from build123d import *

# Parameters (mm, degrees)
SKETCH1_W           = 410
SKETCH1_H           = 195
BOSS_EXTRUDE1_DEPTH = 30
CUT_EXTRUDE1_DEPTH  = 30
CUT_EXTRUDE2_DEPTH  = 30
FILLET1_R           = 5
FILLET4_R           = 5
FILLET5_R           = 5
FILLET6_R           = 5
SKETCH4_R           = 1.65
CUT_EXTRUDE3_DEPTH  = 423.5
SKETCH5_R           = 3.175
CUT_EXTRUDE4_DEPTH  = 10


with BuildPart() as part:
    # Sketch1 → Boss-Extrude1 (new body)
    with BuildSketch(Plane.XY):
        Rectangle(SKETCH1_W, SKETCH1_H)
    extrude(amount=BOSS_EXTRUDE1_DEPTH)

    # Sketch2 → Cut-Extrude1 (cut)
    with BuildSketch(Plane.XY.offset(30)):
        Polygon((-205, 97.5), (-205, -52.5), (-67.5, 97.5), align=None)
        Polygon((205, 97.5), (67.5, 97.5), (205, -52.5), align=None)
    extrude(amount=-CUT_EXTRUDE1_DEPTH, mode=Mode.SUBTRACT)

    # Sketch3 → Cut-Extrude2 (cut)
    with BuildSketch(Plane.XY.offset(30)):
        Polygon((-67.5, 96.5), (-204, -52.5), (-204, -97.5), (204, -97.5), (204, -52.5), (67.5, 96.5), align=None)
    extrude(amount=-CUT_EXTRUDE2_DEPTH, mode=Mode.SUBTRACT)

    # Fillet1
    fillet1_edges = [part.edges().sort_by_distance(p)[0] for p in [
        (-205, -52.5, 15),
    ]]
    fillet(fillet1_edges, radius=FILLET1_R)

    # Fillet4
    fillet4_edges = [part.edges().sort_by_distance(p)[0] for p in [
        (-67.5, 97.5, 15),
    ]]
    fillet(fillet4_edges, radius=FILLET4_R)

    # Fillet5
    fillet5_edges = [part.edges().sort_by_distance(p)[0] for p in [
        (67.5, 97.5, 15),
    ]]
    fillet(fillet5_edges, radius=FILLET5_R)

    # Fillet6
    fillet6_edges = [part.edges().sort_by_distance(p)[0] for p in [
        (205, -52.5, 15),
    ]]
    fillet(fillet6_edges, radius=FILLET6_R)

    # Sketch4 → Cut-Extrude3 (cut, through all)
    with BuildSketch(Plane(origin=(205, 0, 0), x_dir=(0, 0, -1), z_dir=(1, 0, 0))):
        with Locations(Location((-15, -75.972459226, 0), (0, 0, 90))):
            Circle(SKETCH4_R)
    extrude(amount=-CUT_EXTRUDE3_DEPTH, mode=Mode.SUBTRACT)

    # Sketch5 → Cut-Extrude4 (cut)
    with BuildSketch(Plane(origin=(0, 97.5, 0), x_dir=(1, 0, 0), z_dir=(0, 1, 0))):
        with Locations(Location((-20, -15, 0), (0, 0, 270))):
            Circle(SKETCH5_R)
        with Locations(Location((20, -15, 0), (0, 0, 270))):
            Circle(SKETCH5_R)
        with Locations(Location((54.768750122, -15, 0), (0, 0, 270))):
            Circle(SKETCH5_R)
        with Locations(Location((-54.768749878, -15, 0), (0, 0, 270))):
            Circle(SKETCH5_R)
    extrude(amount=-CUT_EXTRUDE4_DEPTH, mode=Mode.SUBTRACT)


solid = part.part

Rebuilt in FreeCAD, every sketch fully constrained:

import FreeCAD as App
import Part
import Sketcher
from FreeCAD import Vector
Q = App.Units.Quantity


def edges_at(feature, points):
    """Names of the edges that pass closest to the given points."""
    edges = feature.Shape.Edges
    near = lambda p: min(range(len(edges)), key=lambda i: edges[i].distToShape(Part.Vertex(*p))[0])
    return sorted({f"Edge{near(p) + 1}" for p in points})

doc = App.newDocument("Part")
body = doc.addObject("PartDesign::Body", "Body")

# Sketch on XY plane
sketch1 = body.newObject("Sketcher::SketchObject", "Sketch")
sketch1.AttachmentSupport = (doc.getObject("XY_Plane"), [""])
sketch1.MapMode = "FlatFace"
sketch1.addGeometry([
    Part.LineSegment(Vector(-205, 98, 0), Vector(-205, -98, 0)),
    Part.LineSegment(Vector(-205, -98, 0), Vector(205, -98, 0)),
    Part.LineSegment(Vector(205, -98, 0), Vector(205, 98, 0)),
    Part.LineSegment(Vector(205, 98, 0), Vector(-205, 98, 0)),
], False)
sketch1.addConstraint([
    Sketcher.Constraint("Coincident", 0, 2, 1, 1),
    Sketcher.Constraint("Coincident", 1, 2, 2, 1),
    Sketcher.Constraint("Coincident", 2, 2, 3, 1),
    Sketcher.Constraint("Coincident", 3, 2, 0, 1),
    Sketcher.Constraint("Vertical", 0),
    Sketcher.Constraint("Horizontal", 1),
    Sketcher.Constraint("Vertical", 2),
    Sketcher.Constraint("Horizontal", 3),
    Sketcher.Constraint("Symmetric", 0, 2, 2, 2, -1, 1),
    Sketcher.Constraint("DistanceX", 1, 1, 1, 2, Q("410 mm")),
    Sketcher.Constraint("DistanceY", 0, 2, 0, 1, Q("195 mm")),
])
pad1 = body.newObject("PartDesign::Pad", "Pad")
pad1.Profile = sketch1
pad1.Length = 30

# Sketch on XY plane
sketch2 = body.newObject("Sketcher::SketchObject", "Sketch001")
sketch2.AttachmentSupport = (doc.getObject("XY_Plane"), [""])
sketch2.MapMode = "FlatFace"
sketch2.AttachmentOffset = App.Placement(Vector(0, 0, 30), App.Rotation())
sketch2.addGeometry([
    Part.LineSegment(Vector(-205, 98, 0), Vector(-205, -52, 0)),  # 0
    Part.LineSegment(Vector(-205, -52, 0), Vector(-68, 98, 0)),  # 1
    Part.LineSegment(Vector(-68, 98, 0), Vector(-205, 98, 0)),  # 2
    Part.LineSegment(Vector(205, 98, 0), Vector(68, 98, 0)),  # 3
    Part.LineSegment(Vector(68, 98, 0), Vector(205, -52, 0)),  # 4
    Part.LineSegment(Vector(205, -52, 0), Vector(205, 98, 0)),  # 5
], False)
sketch2.addConstraint([
    Sketcher.Constraint("Coincident", 0, 2, 1, 1),
    Sketcher.Constraint("Coincident", 1, 2, 2, 1),
    Sketcher.Constraint("Coincident", 2, 2, 0, 1),
    Sketcher.Constraint("Coincident", 3, 2, 4, 1),
    Sketcher.Constraint("Coincident", 4, 2, 5, 1),
    Sketcher.Constraint("Coincident", 5, 2, 3, 1),
    Sketcher.Constraint("Vertical", 0),
    Sketcher.Constraint("Horizontal", 2),
    Sketcher.Constraint("Horizontal", 3),
    Sketcher.Constraint("Vertical", 5),
    Sketcher.Constraint("Symmetric", 1, 2, 3, 2, -2),
    Sketcher.Constraint("Symmetric", 0, 2, 4, 2, -2),
    Sketcher.Constraint("DistanceY", 0, 2, 0, 1, Q("150 mm")),
    Sketcher.Constraint("DistanceX", 2, 2, 2, 1, Q("137.5 mm")),
    Sketcher.Constraint("DistanceX", 0, 2, -1, 1, Q("205 mm")),
    Sketcher.Constraint("DistanceY", 0, 2, -1, 1, Q("52.5 mm")),
])
pocket1 = body.newObject("PartDesign::Pocket", "Pocket")
pocket1.Profile = sketch2
pocket1.Length = 30

# Sketch on XY plane
sketch3 = body.newObject("Sketcher::SketchObject", "Sketch002")
sketch3.AttachmentSupport = (doc.getObject("XY_Plane"), [""])
sketch3.MapMode = "FlatFace"
sketch3.AttachmentOffset = App.Placement(Vector(0, 0, 30), App.Rotation())
sketch3.addGeometry([
    Part.LineSegment(Vector(-68, 96, 0), Vector(-204, -52, 0)),  # 0
    Part.LineSegment(Vector(-204, -52, 0), Vector(-204, -98, 0)),  # 1
    Part.LineSegment(Vector(-204, -98, 0), Vector(204, -98, 0)),  # 2
    Part.LineSegment(Vector(204, -98, 0), Vector(204, -52, 0)),  # 3
    Part.LineSegment(Vector(204, -52, 0), Vector(68, 96, 0)),  # 4
    Part.LineSegment(Vector(68, 96, 0), Vector(-68, 96, 0)),  # 5
], False)
sketch3.addConstraint([
    Sketcher.Constraint("Coincident", 0, 2, 1, 1),
    Sketcher.Constraint("Coincident", 1, 2, 2, 1),
    Sketcher.Constraint("Coincident", 2, 2, 3, 1),
    Sketcher.Constraint("Coincident", 3, 2, 4, 1),
    Sketcher.Constraint("Coincident", 4, 2, 5, 1),
    Sketcher.Constraint("Coincident", 5, 2, 0, 1),
    Sketcher.Constraint("Vertical", 1),
    Sketcher.Constraint("Horizontal", 2),
    Sketcher.Constraint("Vertical", 3),
    Sketcher.Constraint("Horizontal", 5),
    Sketcher.Constraint("Symmetric", 0, 2, 3, 2, -2),
    Sketcher.Constraint("Equal", 0, 4),
    Sketcher.Constraint("DistanceX", 2, 1, 2, 2, Q("408 mm")),
    Sketcher.Constraint("DistanceX", 5, 2, 5, 1, Q("135 mm")),
    Sketcher.Constraint("DistanceY", 1, 2, 1, 1, Q("45 mm")),
    Sketcher.Constraint("DistanceY", 3, 2, 4, 2, Q("149 mm")),
    Sketcher.Constraint("DistanceY", 0, 2, -1, 1, Q("52.5 mm")),
])
pocket2 = body.newObject("PartDesign::Pocket", "Pocket001")
pocket2.Profile = sketch3
pocket2.Length = 30
doc.recompute()

fillet = body.newObject("PartDesign::Fillet", "Fillet")
fillet.Base = (pocket2, edges_at(pocket2, [(-205, -52.5, 15)]))
fillet.Radius = 5
doc.recompute()

fillet2 = body.newObject("PartDesign::Fillet", "Fillet001")
fillet2.Base = (fillet, edges_at(fillet, [(-67.5, 97.5, 15)]))
fillet2.Radius = 5
doc.recompute()

fillet3 = body.newObject("PartDesign::Fillet", "Fillet002")
fillet3.Base = (fillet2, edges_at(fillet2, [(67.5, 97.5, 15)]))
fillet3.Radius = 5
doc.recompute()

fillet4 = body.newObject("PartDesign::Fillet", "Fillet003")
fillet4.Base = (fillet3, edges_at(fillet3, [(205, -52.5, 15)]))
fillet4.Radius = 5

# Sketch on YZ plane
sketch4 = body.newObject("Sketcher::SketchObject", "Sketch003")
sketch4.AttachmentSupport = (doc.getObject("YZ_Plane"), [""])
sketch4.MapMode = "FlatFace"
sketch4.AttachmentOffset = App.Placement(Vector(0, 0, 205), App.Rotation())
sketch4.addGeometry(Part.Circle(Vector(-76, 15, 0), Vector(0, 0, 1), 1.6), False)
sketch4.addConstraint([
    Sketcher.Constraint("Diameter", 0, Q("3.3 mm")),
    Sketcher.Constraint("DistanceY", -1, 1, 0, 3, Q("15 mm")),
    Sketcher.Constraint("DistanceX", 0, 3, -1, 1, Q("75.972459 mm")),
])
pocket3 = body.newObject("PartDesign::Pocket", "Pocket002")
pocket3.Profile = sketch4
pocket3.Type = "ThroughAll"

# Sketch on XZ plane
sketch5 = body.newObject("Sketcher::SketchObject", "Sketch004")
sketch5.AttachmentSupport = (doc.getObject("XZ_Plane"), [""])
sketch5.MapMode = "FlatFace"
sketch5.AttachmentOffset = App.Placement(Vector(0, 0, -97.5), App.Rotation())
sketch5.addGeometry([
    Part.Circle(Vector(-20, 15, 0), Vector(0, 0, 1), 3.2),
    Part.Circle(Vector(20, 15, 0), Vector(0, 0, 1), 3.2),
    Part.Circle(Vector(54.8, 15, 0), Vector(0, 0, 1), 3.2),
    Part.Circle(Vector(-54.8, 15, 0), Vector(0, 0, 1), 3.2),
], False)
sketch5.addConstraint([
    Sketcher.Constraint("Equal", 0, 1),
    Sketcher.Constraint("Equal", 1, 2),
    Sketcher.Constraint("Equal", 2, 3),
    Sketcher.Constraint("Symmetric", 0, 3, 1, 3, -2),
    Sketcher.Constraint("Symmetric", 2, 3, 3, 3, -2),
    Sketcher.Constraint("Horizontal", 1, 3, 2, 3),
    Sketcher.Constraint("Diameter", 0, Q("6.35 mm")),
    Sketcher.Constraint("DistanceX", 0, 3, -1, 1, Q("20 mm")),
    Sketcher.Constraint("DistanceY", -1, 1, 0, 3, Q("15 mm")),
    Sketcher.Constraint("DistanceX", 3, 3, 2, 3, Q("109.5375 mm")),
])
pocket4 = body.newObject("PartDesign::Pocket", "Pocket003")
pocket4.Profile = sketch5
pocket4.Length = 10
pocket4.Reversed = True

doc.recompute()
